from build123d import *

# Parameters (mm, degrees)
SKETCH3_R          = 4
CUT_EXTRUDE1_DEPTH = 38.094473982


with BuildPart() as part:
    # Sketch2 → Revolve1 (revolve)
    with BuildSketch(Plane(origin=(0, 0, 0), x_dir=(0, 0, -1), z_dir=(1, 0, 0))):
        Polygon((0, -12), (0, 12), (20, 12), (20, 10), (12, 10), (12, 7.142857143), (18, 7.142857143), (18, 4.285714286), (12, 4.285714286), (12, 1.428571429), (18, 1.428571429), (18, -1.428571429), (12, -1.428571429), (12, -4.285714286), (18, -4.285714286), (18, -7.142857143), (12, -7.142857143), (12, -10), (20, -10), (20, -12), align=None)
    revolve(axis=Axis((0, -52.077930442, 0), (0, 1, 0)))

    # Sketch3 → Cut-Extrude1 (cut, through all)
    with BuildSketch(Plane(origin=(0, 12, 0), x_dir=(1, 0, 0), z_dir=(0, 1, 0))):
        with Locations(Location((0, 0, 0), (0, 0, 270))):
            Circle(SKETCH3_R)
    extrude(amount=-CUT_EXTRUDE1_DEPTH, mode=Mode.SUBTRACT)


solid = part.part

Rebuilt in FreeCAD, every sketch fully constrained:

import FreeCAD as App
import Part
import Sketcher
from FreeCAD import Vector

doc = App.newDocument("Part")
body = doc.addObject("PartDesign::Body", "Body")

sketch1 = body.newObject("Sketcher::SketchObject", "Sketch")
sketch1.AttachmentSupport = (doc.getObject("YZ_Plane"), [""])
sketch1.MapMode = "FlatFace"
sketch1.addGeometry([
    Part.LineSegment(Vector(12, 0, 0), Vector(-12, 0, 0)),
    Part.LineSegment(Vector(-12, 0, 0), Vector(-12, -20, 0)),
    Part.LineSegment(Vector(-12, -20, 0), Vector(-10, -20, 0)),
    Part.LineSegment(Vector(-10, -20, 0), Vector(-10, -12, 0)),
    Part.LineSegment(Vector(-10, -12, 0), Vector(-7.142857, -12, 0)),
    Part.LineSegment(Vector(-7.142857, -12, 0), Vector(-7.142857, -18, 0)),
    Part.LineSegment(Vector(-7.142857, -18, 0), Vector(-4.285714, -18, 0)),
    Part.LineSegment(Vector(-4.285714, -18, 0), Vector(-4.285714, -12, 0)),
    Part.LineSegment(Vector(-4.285714, -12, 0), Vector(-1.428571, -12, 0)),
    Part.LineSegment(Vector(-1.428571, -12, 0), Vector(-1.428571, -18, 0)),
    Part.LineSegment(Vector(-1.428571, -18, 0), Vector(1.428571, -18, 0)),
    Part.LineSegment(Vector(1.428571, -18, 0), Vector(1.428571, -12, 0)),
    Part.LineSegment(Vector(1.428571, -12, 0), Vector(4.285714, -12, 0)),
    Part.LineSegment(Vector(4.285714, -12, 0), Vector(4.285714, -18, 0)),
    Part.LineSegment(Vector(4.285714, -18, 0), Vector(7.142857, -18, 0)),
    Part.LineSegment(Vector(7.142857, -18, 0), Vector(7.142857, -12, 0)),
    Part.LineSegment(Vector(7.142857, -12, 0), Vector(10, -12, 0)),
    Part.LineSegment(Vector(10, -12, 0), Vector(10, -20, 0)),
    Part.LineSegment(Vector(10, -20, 0), Vector(12, -20, 0)),
    Part.LineSegment(Vector(12, -20, 0), Vector(12, 0, 0)),
], False)
sketch1.addConstraint([
    Sketcher.Constraint("Coincident", 0, 2, 1, 1),
    Sketcher.Constraint("Coincident", 1, 2, 2, 1),
    Sketcher.Constraint("Coincident", 2, 2, 3, 1),
    Sketcher.Constraint("Coincident", 3, 2, 4, 1),
    Sketcher.Constraint("Coincident", 4, 2, 5, 1),
    Sketcher.Constraint("Coincident", 5, 2, 6, 1),
    Sketcher.Constraint("Coincident", 6, 2, 7, 1),
    Sketcher.Constraint("Coincident", 7, 2, 8, 1),
    Sketcher.Constraint("Coincident", 8, 2, 9, 1),
    Sketcher.Constraint("Coincident", 9, 2, 10, 1),
    Sketcher.Constraint("Coincident", 10, 2, 11, 1),
    Sketcher.Constraint("Coincident", 11, 2, 12, 1),
    Sketcher.Constraint("Coincident", 12, 2, 13, 1),
    Sketcher.Constraint("Coincident", 13, 2, 14, 1),
    Sketcher.Constraint("Coincident", 14, 2, 15, 1),
    Sketcher.Constraint("Coincident", 15, 2, 16, 1),
    Sketcher.Constraint("Coincident", 16, 2, 17, 1),
    Sketcher.Constraint("Coincident", 17, 2, 18, 1),
    Sketcher.Constraint("Coincident", 18, 2, 19, 1),
    Sketcher.Constraint("Coincident", 19, 2, 0, 1),
    Sketcher.Constraint("Horizontal", 0),
    Sketcher.Constraint("Vertical", 1),
    Sketcher.Constraint("Horizontal", 2),
    Sketcher.Constraint("Vertical", 3),
    Sketcher.Constraint("Horizontal", 4),
    Sketcher.Constraint("Vertical", 5),
    Sketcher.Constraint("Horizontal", 6),
    Sketcher.Constraint("Vertical", 7),
    Sketcher.Constraint("Horizontal", 8),
    Sketcher.Constraint("Vertical", 9),
    Sketcher.Constraint("Horizontal", 10),
    Sketcher.Constraint("Vertical", 11),
    Sketcher.Constraint("Horizontal", 12),
    Sketcher.Constraint("Vertical", 13),
    Sketcher.Constraint("Horizontal", 14),
    Sketcher.Constraint("Vertical", 15),
    Sketcher.Constraint("Horizontal", 16),
    Sketcher.Constraint("Vertical", 17),
    Sketcher.Constraint("Horizontal", 18),
    Sketcher.Constraint("Vertical", 19),
    Sketcher.Constraint("Symmetric", 0, 2, 19, 2, -1, 1),
    Sketcher.Constraint("Symmetric", 8, 2, 11, 2, -2),
    Sketcher.Constraint("Symmetric", 6, 2, 13, 2, -2),
    Sketcher.Constraint("Symmetric", 4, 2, 15, 2, -2),
    Sketcher.Constraint("Symmetric", 2, 2, 17, 2, -2),
    Sketcher.Constraint("Horizontal", 4, 2, 7, 2),
    Sketcher.Constraint("Horizontal", 6, 2, 9, 2),
    Sketcher.Constraint("Equal", 4, 6),
    Sketcher.Constraint("Equal", 6, 8),
    Sketcher.Constraint("Equal", 8, 10),
    Sketcher.Constraint("DistanceX", 0, 2, 0, 1, 24.0),
    Sketcher.Constraint("DistanceX", 2, 1, 2, 2, 2.0),
    Sketcher.Constraint("DistanceY", 1, 2, 1, 1, 20.0),
    Sketcher.Constraint("DistanceY", 3, 1, 3, 2, 8.0),
    Sketcher.Constraint("DistanceY", 5, 2, 5, 1, 6.0),
])
revolution = body.newObject("PartDesign::Revolution", "Revolution")
revolution.Profile = sketch1
revolution.ReferenceAxis = (sketch1, ["H_Axis"])
revolution.Angle = 360

sketch2 = body.newObject("Sketcher::SketchObject", "Sketch001")
sketch2.AttachmentSupport = (doc.getObject("XZ_Plane"), [""])
sketch2.MapMode = "FlatFace"
sketch2.AttachmentOffset = App.Placement(Vector(0, 0, -12), App.Rotation())
sketch2.addGeometry(Part.Circle(Vector(0, 0, 0), Vector(0, 0, 1), 4), False)
sketch2.addConstraint([
    Sketcher.Constraint("Coincident", 0, 3, -1, 1),
    Sketcher.Constraint("Diameter", 0, 8.0),
])
pocket1 = body.newObject("PartDesign::Pocket", "Pocket")
pocket1.Profile = sketch2
pocket1.Type = "ThroughAll"
pocket1.Reversed = True

doc.recompute()
